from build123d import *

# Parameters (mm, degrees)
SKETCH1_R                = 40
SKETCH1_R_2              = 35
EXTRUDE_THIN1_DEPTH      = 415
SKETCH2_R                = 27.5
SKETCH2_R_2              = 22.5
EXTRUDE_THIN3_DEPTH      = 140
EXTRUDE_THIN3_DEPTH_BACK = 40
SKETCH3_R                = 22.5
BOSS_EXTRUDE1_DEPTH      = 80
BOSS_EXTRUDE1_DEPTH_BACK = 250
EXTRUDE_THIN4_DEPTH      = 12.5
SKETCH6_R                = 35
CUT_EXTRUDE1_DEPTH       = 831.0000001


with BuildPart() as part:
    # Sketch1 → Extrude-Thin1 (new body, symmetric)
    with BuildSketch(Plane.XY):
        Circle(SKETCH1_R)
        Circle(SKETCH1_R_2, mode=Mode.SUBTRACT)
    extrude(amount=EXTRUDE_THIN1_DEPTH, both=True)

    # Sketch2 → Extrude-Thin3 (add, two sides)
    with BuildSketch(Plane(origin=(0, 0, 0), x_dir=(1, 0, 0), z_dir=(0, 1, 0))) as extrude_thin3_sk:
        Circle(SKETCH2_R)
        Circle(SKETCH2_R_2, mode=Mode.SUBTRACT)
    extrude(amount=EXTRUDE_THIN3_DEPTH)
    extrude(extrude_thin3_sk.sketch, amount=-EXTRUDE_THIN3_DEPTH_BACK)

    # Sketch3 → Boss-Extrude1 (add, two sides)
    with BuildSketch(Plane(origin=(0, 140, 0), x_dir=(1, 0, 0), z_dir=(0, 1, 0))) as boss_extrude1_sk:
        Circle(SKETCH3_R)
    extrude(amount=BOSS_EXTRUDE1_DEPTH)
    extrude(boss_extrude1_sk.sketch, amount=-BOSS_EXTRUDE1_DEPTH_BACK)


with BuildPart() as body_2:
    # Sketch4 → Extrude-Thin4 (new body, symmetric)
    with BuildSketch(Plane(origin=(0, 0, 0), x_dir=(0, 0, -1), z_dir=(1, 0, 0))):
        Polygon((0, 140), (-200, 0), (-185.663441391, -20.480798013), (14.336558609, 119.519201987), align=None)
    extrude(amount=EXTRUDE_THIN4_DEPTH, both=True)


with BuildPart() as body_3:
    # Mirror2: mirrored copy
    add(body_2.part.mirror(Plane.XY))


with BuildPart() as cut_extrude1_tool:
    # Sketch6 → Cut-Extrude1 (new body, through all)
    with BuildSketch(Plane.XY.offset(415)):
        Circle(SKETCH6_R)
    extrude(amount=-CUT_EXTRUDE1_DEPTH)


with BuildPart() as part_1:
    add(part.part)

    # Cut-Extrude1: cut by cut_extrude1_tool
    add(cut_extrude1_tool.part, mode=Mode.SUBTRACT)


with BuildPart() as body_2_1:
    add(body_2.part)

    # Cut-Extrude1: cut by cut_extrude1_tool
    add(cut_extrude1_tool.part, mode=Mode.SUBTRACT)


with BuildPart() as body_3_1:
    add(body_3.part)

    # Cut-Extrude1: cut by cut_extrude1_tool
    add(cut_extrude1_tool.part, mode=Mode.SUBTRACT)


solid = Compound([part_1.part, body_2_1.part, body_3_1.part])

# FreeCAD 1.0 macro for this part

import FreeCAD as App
import Part
import Sketcher

V = App.Vector
Q = App.Units.Quantity


def add_polygon(sketch, points):
    """Adds a closed chain of lines whose ends are joined by coincident constraints."""
    first, n = sketch.GeometryCount, len(points)
    for a, b in zip(points, points[1:] + points[:1]):
        sketch.addGeometry(Part.LineSegment(App.Vector(*a, 0), App.Vector(*b, 0)), False)
    for i in range(n):
        sketch.addConstraint(Sketcher.Constraint("Coincident", first + i, 2, first + (i + 1) % n, 1))

doc = App.newDocument("Part")
params = doc.addObject("Spreadsheet::Sheet", "Params")
for row, (alias, value) in enumerate([
    ("sketch1_diameter", "80 mm"),
    ("sketch1_diameter2", "70 mm"),
    ("pad1_length", "830 mm"),
    ("sketch2_diameter", "55 mm"),
    ("sketch2_diameter2", "45 mm"),
    ("pad2_length", "140 mm"),
    ("pad2_length2", "40 mm"),
    ("sketch3_diameter", "45 mm"),
    ("pad3_length", "80 mm"),
    ("pad3_length2", "250 mm"),
    ("sketch4_length", "25 mm"),
    ("pad4_length", "25 mm"),
    ("sketch5_diameter", "70 mm"),
    ("pad5_length", "831 mm"),
], start=1):
    params.set(f"A{row}", alias)
    params.set(f"B{row}", "=" + value)
    params.setAlias(f"B{row}", alias)

body = doc.addObject("PartDesign::Body", "Body")

sketch1 = body.newObject("Sketcher::SketchObject", "Sketch")
sketch1.AttachmentSupport = (doc.getObject("XY_Plane"), [""])
sketch1.MapMode = "FlatFace"
sketch1.addGeometry([
    Part.Circle(V(0, 0, 0), V(0, 0, 1), 40),
    Part.Circle(V(0, 0, 0), V(0, 0, 1), 35),
], False)
sketch1.addConstraint([
    Sketcher.Constraint("Coincident", 0, 3, -1, 1),
    Sketcher.Constraint("Coincident", 1, 3, -1, 1),
    Sketcher.Constraint("Diameter", 0, Q("80 mm")),
    Sketcher.Constraint("Diameter", 1, Q("70 mm")),
])
sketch1.setExpression("Constraints[2]", "Params.sketch1_diameter")
sketch1.setExpression("Constraints[3]", "Params.sketch1_diameter2")
pad1 = body.newObject("PartDesign::Pad", "Pad")
pad1.Profile = sketch1
pad1.setExpression("Length", "Params.pad1_length")
pad1.Midplane = True

sketch2 = body.newObject("Sketcher::SketchObject", "Sketch001")
sketch2.AttachmentSupport = (doc.getObject("XZ_Plane"), [""])
sketch2.MapMode = "FlatFace"
sketch2.addGeometry([
    Part.Circle(V(0, 0, 0), V(0, 0, 1), 28),
    Part.Circle(V(0, 0, 0), V(0, 0, 1), 22),
], False)
sketch2.addConstraint([
    Sketcher.Constraint("Coincident", 0, 3, -1, 1),
    Sketcher.Constraint("Coincident", 1, 3, -1, 1),
    Sketcher.Constraint("Diameter", 0, Q("55 mm")),
    Sketcher.Constraint("Diameter", 1, Q("45 mm")),
])
sketch2.setExpression("Constraints[2]", "Params.sketch2_diameter")
sketch2.setExpression("Constraints[3]", "Params.sketch2_diameter2")
pad2 = body.newObject("PartDesign::Pad", "Pad001")
pad2.Profile = sketch2
pad2.Type = "TwoLengths"
pad2.setExpression("Length", "Params.pad2_length")
pad2.setExpression("Length2", "Params.pad2_length2")
pad2.Reversed = True

sketch3 = body.newObject("Sketcher::SketchObject", "Sketch002")
sketch3.AttachmentSupport = (doc.getObject("XZ_Plane"), [""])
sketch3.MapMode = "FlatFace"
sketch3.AttachmentOffset = App.Placement(V(0, 0, -140), App.Rotation())
sketch3.addGeometry(Part.Circle(V(0, 0, 0), V(0, 0, 1), 22), False)
sketch3.addConstraint([
    Sketcher.Constraint("Coincident", 0, 3, -1, 1),
    Sketcher.Constraint("Diameter", 0, Q("45 mm")),
])
sketch3.setExpression("Constraints[1]", "Params.sketch3_diameter")
pad3 = body.newObject("PartDesign::Pad", "Pad002")
pad3.Profile = sketch3
pad3.Type = "TwoLengths"
pad3.setExpression("Length", "Params.pad3_length")
pad3.setExpression("Length2", "Params.pad3_length2")
pad3.Reversed = True
body2 = doc.addObject("PartDesign::Body", "Body001")

sketch4 = body2.newObject("Sketcher::SketchObject", "Sketch003")
sketch4.AttachmentSupport = (doc.getObject("YZ_Plane001"), [""])
sketch4.MapMode = "FlatFace"
add_polygon(sketch4, [(140, 0), (0, 200), (-20, 186), (120, -14)])
sketch4.addConstraint([
    Sketcher.Constraint("PointOnObject", 0, 2, -2),
    Sketcher.Constraint("PointOnObject", 3, 2, -1),
    Sketcher.Constraint("Perpendicular", 0, 1),
    Sketcher.Constraint("Perpendicular", 1, 2),
    Sketcher.Constraint("Perpendicular", 2, 3),
    Sketcher.Constraint("Distance", 1, Q("25 mm")),
    Sketcher.Constraint("DistanceY", -1, 1, 0, 2, Q("200 mm")),
    Sketcher.Constraint("DistanceX", -1, 1, 3, 2, Q("140 mm")),
])
sketch4.setExpression("Constraints[9]", "Params.sketch4_length")
pad4 = body2.newObject("PartDesign::Pad", "Pad003")
pad4.Profile = sketch4
pad4.setExpression("Length", "Params.pad4_length")
pad4.Midplane = True
body3 = doc.addObject("PartDesign::Body", "Body002")
doc.recompute()

mirroring = doc.addObject("Part::Mirroring", "Mirroring")
mirroring.Source = body2
mirroring.Base = V(0, 0, 0)
mirroring.Normal = V(0, 0, 1)
body3.BaseFeature = mirroring
doc.recompute()
body4 = doc.addObject("PartDesign::Body", "Body003")

sketch5 = body4.newObject("Sketcher::SketchObject", "Sketch004")
sketch5.AttachmentSupport = (doc.getObject("XY_Plane003"), [""])
sketch5.MapMode = "FlatFace"
sketch5.AttachmentOffset = App.Placement(V(0, 0, 415), App.Rotation())
sketch5.addGeometry(Part.Circle(V(0, 0, 0), V(0, 0, 1), 35), False)
sketch5.addConstraint([
    Sketcher.Constraint("Coincident", 0, 3, -1, 1),
    Sketcher.Constraint("Diameter", 0, Q("70 mm")),
])
sketch5.setExpression("Constraints[1]", "Params.sketch5_diameter")
pad5 = body4.newObject("PartDesign::Pad", "Pad004")
pad5.Profile = sketch5
pad5.setExpression("Length", "Params.pad5_length")
pad5.Reversed = True
doc.recompute()

body5 = doc.addObject("PartDesign::Body", "Body004")
body5.BaseFeature = body4
boolean = body.newObject("PartDesign::Boolean", "Boolean")
boolean.Type = "Cut"
boolean.addObjects([body5])
doc.recompute()

body6 = doc.addObject("PartDesign::Body", "Body005")
body6.BaseFeature = body4
boolean2 = body2.newObject("PartDesign::Boolean", "Boolean001")
boolean2.Type = "Cut"
boolean2.addObjects([body6])
doc.recompute()

boolean3 = body3.newObject("PartDesign::Boolean", "Boolean002")
boolean3.Type = "Cut"
boolean3.addObjects([body4])
mirroring.Visibility = False

doc.recompute()
